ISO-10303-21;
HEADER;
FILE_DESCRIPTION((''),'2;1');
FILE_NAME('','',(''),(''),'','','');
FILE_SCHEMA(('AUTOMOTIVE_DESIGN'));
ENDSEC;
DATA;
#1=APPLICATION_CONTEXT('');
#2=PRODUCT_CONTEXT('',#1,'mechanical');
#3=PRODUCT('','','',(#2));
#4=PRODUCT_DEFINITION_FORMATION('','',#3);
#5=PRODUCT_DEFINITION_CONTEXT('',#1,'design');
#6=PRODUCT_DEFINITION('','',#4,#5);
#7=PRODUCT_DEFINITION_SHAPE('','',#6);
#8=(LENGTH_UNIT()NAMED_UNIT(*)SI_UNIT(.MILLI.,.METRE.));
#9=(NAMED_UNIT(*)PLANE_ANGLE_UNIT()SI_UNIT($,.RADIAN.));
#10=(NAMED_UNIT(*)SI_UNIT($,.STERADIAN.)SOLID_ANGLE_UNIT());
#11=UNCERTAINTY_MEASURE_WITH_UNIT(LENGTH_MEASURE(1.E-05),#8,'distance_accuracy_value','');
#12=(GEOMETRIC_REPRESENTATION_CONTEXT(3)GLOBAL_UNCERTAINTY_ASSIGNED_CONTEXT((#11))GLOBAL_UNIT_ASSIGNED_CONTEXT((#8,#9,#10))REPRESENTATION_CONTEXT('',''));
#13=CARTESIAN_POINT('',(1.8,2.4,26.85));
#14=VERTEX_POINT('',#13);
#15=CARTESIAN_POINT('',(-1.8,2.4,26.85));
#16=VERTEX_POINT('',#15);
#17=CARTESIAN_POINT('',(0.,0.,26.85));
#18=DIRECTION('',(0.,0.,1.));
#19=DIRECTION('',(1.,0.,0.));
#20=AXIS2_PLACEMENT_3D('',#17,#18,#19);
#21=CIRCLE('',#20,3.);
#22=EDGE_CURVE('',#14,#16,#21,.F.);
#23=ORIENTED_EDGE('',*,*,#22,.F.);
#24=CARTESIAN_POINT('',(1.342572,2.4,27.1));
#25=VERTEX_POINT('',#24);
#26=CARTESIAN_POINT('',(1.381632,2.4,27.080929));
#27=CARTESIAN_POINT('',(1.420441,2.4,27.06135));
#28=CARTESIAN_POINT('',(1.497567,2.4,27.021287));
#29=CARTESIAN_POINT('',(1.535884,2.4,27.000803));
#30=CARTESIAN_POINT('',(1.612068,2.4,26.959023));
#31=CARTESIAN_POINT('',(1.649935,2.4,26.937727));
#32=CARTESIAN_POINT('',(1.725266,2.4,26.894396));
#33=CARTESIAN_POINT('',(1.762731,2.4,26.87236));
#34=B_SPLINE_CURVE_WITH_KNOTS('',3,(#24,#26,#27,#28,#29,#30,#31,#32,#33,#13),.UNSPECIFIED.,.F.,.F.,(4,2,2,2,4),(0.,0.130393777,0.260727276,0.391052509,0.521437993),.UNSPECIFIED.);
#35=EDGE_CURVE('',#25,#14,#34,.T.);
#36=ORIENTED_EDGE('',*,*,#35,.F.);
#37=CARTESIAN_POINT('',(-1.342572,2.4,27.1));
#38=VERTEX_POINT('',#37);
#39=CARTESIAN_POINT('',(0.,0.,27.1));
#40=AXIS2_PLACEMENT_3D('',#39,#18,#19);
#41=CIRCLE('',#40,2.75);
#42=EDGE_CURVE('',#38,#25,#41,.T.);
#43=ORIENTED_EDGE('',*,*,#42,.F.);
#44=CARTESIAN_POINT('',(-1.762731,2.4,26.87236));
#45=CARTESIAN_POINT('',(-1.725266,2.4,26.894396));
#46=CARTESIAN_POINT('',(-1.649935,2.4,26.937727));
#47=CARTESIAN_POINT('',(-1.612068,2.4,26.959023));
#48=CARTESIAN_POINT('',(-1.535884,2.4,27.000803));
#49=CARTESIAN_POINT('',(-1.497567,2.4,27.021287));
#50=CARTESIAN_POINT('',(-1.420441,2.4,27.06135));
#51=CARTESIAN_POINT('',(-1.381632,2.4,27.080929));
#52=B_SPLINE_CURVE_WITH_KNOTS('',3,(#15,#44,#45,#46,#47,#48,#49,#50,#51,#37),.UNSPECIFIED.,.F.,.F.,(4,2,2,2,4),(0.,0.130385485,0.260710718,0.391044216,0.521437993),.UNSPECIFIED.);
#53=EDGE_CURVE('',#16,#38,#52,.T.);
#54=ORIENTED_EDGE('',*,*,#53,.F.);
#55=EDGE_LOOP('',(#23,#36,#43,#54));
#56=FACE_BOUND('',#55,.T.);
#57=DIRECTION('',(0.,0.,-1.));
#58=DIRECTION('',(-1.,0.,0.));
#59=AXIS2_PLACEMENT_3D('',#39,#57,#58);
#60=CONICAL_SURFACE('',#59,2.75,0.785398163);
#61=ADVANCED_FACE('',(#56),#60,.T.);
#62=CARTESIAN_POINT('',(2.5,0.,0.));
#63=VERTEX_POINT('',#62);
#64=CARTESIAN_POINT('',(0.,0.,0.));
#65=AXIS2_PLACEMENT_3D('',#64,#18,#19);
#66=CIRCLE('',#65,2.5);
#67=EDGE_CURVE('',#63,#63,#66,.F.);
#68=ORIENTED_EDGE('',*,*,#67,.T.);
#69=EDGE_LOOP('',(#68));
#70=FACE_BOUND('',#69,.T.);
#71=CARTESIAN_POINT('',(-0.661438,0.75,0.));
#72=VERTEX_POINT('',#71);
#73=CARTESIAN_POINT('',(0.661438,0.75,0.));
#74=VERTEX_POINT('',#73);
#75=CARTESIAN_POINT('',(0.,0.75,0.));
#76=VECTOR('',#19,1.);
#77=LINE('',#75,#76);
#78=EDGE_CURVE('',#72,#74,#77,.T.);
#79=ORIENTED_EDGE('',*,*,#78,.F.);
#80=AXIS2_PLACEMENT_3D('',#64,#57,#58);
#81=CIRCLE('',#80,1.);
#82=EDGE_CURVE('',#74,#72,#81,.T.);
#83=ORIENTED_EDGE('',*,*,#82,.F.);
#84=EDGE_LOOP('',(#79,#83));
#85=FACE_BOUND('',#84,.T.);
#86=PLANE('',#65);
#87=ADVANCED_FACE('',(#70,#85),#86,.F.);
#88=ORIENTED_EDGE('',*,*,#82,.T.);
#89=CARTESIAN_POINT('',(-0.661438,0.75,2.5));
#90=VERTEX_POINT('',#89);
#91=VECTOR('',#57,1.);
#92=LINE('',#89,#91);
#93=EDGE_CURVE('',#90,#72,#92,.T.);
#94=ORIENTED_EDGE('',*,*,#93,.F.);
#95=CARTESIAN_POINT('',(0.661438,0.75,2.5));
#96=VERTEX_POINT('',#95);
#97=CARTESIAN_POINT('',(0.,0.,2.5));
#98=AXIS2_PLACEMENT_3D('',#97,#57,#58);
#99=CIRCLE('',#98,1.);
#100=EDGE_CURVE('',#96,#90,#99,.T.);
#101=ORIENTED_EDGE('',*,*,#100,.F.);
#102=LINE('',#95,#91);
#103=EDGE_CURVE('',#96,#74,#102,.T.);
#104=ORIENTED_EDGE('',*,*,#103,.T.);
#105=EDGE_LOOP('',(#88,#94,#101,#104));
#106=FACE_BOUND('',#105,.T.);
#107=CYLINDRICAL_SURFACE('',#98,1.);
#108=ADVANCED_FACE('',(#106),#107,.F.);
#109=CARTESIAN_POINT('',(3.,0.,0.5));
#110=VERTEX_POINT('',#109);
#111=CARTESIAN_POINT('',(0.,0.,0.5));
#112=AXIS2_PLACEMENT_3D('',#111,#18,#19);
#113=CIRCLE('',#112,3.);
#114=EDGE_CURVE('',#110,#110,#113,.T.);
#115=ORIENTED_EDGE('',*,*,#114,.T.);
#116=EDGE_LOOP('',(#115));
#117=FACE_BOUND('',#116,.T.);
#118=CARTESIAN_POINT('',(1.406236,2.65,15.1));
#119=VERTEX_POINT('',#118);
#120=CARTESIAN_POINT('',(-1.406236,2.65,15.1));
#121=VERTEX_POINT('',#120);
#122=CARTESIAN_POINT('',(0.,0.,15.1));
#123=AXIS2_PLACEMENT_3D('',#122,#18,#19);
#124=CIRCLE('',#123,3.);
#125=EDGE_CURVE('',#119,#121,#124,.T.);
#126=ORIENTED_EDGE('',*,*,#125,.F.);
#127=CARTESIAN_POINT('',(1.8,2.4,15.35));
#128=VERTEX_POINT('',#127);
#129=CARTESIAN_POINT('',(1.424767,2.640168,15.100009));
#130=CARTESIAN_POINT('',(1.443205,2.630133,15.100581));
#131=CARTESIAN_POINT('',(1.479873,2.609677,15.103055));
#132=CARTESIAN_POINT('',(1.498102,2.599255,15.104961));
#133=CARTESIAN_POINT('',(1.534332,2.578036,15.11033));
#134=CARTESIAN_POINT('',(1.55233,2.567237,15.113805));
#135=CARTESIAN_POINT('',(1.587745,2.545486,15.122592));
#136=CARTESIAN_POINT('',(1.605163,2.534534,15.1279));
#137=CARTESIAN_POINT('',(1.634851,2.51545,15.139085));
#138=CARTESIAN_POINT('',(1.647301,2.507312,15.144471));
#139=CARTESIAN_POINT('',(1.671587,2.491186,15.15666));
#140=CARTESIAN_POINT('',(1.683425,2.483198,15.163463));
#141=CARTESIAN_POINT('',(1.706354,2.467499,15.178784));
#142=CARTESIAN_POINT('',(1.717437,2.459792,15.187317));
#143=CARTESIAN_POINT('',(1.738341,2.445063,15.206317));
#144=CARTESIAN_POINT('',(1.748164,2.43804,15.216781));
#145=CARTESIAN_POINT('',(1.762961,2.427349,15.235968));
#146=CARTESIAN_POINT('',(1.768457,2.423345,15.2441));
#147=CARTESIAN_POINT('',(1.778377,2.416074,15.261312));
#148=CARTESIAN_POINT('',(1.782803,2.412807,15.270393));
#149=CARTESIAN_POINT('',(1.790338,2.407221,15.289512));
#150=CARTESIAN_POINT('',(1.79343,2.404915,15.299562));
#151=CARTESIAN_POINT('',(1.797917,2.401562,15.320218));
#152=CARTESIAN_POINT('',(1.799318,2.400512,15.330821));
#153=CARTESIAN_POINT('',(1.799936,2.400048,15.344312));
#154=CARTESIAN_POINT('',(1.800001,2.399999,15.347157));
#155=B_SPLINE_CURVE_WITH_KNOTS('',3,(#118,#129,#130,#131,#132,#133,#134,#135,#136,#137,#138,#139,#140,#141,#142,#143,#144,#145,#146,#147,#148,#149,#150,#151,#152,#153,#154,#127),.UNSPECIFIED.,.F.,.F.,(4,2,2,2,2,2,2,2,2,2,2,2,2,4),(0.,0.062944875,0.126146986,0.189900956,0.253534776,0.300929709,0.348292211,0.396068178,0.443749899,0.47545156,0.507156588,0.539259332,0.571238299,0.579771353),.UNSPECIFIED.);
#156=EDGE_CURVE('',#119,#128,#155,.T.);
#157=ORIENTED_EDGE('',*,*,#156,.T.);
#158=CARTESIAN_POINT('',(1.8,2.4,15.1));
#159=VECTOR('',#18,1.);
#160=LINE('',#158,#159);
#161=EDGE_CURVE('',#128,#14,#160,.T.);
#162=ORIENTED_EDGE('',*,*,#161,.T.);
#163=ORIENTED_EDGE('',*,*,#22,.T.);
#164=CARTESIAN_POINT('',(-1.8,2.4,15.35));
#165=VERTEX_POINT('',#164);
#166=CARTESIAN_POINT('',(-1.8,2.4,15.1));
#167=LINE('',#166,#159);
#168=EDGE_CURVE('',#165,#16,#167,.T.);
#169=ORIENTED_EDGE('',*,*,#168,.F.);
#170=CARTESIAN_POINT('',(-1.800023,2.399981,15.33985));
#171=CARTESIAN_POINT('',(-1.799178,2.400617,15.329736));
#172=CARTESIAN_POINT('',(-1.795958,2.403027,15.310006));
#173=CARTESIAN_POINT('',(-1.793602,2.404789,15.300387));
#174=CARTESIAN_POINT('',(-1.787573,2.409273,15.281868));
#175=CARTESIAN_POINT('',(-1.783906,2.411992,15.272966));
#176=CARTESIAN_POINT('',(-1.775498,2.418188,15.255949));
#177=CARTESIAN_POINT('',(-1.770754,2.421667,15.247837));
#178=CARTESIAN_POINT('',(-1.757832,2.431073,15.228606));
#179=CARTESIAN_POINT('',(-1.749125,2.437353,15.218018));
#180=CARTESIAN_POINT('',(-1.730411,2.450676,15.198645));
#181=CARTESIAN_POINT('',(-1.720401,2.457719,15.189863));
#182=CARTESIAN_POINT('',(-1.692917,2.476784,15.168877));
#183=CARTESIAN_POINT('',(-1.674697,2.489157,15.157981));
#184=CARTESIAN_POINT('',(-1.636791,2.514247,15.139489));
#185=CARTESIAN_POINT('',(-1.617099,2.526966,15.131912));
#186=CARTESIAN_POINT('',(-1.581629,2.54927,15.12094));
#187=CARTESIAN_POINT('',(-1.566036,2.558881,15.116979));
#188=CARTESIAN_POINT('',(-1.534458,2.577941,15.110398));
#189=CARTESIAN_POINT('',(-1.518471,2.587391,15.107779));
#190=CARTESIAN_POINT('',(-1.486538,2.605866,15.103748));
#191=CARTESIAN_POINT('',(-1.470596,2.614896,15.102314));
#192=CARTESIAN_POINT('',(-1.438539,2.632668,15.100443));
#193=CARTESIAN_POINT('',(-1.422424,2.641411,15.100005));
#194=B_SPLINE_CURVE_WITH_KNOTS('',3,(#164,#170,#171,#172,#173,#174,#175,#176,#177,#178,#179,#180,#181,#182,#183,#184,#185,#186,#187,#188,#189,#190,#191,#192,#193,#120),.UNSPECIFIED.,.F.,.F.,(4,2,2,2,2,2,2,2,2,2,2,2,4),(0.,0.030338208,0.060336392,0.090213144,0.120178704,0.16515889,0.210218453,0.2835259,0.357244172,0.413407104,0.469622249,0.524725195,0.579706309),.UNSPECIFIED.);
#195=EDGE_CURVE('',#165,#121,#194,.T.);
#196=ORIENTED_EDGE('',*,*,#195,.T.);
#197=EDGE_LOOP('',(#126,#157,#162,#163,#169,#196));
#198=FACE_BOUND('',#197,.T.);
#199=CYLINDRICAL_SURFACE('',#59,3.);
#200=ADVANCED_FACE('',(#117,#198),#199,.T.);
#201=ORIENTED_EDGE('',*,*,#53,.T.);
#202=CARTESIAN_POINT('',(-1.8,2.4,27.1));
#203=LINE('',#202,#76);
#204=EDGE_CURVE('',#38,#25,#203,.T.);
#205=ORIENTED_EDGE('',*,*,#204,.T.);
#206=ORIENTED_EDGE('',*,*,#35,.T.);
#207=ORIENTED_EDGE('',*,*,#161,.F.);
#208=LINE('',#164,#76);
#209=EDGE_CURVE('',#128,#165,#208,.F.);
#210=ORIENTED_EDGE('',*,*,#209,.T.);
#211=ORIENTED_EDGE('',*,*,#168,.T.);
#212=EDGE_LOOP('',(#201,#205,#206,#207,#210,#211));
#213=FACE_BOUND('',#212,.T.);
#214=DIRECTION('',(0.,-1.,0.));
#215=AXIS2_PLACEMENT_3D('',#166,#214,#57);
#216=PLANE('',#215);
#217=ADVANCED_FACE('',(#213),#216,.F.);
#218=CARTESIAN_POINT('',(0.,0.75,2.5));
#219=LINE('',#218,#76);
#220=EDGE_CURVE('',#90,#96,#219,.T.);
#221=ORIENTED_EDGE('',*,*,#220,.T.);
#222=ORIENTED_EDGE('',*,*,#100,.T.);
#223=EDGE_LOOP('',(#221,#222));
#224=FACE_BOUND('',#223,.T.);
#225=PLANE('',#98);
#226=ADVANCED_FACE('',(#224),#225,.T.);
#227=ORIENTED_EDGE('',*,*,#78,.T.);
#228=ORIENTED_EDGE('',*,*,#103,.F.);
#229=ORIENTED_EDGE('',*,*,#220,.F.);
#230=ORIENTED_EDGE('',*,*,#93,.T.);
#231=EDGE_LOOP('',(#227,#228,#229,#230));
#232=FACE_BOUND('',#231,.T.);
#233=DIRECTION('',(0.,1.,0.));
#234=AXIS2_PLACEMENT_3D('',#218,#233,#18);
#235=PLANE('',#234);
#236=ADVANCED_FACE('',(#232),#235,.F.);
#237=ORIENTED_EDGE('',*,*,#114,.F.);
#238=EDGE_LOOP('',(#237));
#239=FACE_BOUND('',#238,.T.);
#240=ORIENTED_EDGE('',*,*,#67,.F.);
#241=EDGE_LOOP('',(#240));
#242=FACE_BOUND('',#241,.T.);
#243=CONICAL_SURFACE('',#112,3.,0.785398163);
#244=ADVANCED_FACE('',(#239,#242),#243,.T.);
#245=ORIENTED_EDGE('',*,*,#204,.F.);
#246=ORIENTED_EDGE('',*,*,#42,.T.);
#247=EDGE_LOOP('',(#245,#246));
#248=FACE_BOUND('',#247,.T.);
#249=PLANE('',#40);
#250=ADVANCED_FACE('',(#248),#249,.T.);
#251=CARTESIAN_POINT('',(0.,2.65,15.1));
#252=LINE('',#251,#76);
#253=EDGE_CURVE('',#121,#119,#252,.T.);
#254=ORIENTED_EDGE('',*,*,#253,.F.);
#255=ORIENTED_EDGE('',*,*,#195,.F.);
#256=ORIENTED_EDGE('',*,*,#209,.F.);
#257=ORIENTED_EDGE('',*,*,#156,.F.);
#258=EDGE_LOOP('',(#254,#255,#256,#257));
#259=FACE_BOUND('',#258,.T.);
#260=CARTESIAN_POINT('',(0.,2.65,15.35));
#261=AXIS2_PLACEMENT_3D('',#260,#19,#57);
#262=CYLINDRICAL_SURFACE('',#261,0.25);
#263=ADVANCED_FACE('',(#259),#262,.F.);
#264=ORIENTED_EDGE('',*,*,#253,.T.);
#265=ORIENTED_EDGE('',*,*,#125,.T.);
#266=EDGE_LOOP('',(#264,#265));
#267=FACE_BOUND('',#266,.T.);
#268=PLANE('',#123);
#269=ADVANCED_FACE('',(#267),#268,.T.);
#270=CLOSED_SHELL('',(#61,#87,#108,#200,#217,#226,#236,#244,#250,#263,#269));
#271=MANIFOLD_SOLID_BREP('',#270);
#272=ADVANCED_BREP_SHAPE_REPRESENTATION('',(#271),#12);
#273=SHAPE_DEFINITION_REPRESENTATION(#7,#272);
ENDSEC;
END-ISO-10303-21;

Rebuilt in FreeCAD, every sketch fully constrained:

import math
import FreeCAD as App
import Part
import Sketcher
Q = App.Units.Quantity


def edges_at(feature, points):
    """Names of the edges that pass closest to the given points."""
    edges = feature.Shape.Edges
    near = lambda p: min(range(len(edges)), key=lambda i: edges[i].distToShape(Part.Vertex(*p))[0])
    return sorted({f"Edge{near(p) + 1}" for p in points})

doc = App.newDocument("Part")
body = doc.addObject("PartDesign::Body", "Body")

sketch1 = body.newObject("Sketcher::SketchObject", "Sketch")
sketch1.AttachmentSupport = (doc.getObject("XY_Plane"), [""])
sketch1.MapMode = "FlatFace"
sketch1.addGeometry(Part.Circle(App.Vector(0, 0, 0), App.Vector(0, 0, 1), 3), False)
sketch1.addConstraint([
    Sketcher.Constraint("Coincident", 0, 3, -1, 1),
    Sketcher.Constraint("Diameter", 0, Q("6 mm")),
])
pad1 = body.newObject("PartDesign::Pad", "Pad")
pad1.Profile = sketch1
pad1.Length = 27.1

sketch2 = body.newObject("Sketcher::SketchObject", "Sketch001")
sketch2.AttachmentSupport = (doc.getObject("XY_Plane"), [""])
sketch2.MapMode = "FlatFace"
sketch2.AttachmentOffset = App.Placement(App.Vector(0, 0, 27.1), App.Rotation())
sketch2.addGeometry([
    Part.LineSegment(App.Vector(-1.8, 2.4, 0), App.Vector(1.8, 2.4, 0)),
    Part.ArcOfCircle(Part.Circle(App.Vector(0, 0, 0), App.Vector(0, 0, 1), 3), math.radians(53), math.radians(127)),
], False)
sketch2.addConstraint([
    Sketcher.Constraint("Coincident", 0, 1, 1, 2),
    Sketcher.Constraint("Coincident", 1, 1, 0, 2),
    Sketcher.Constraint("Horizontal", 0),
    Sketcher.Constraint("Coincident", 1, 3, -1, 1),
    Sketcher.Constraint("Radius", 1, Q("3 mm")),
    Sketcher.Constraint("DistanceX", 0, 1, 0, 2, Q("3.6 mm")),
])
pocket1 = body.newObject("PartDesign::Pocket", "Pocket")
pocket1.Profile = sketch2
pocket1.Length = 12
doc.recompute()

chamfer = body.newObject("PartDesign::Chamfer", "Chamfer")
chamfer.Base = (pocket1, edges_at(pocket1, [(-1.342, -2.683, 27.1)]))
chamfer.Size = 0.25

sketch3 = body.newObject("Sketcher::SketchObject", "Sketch002")
sketch3.AttachmentSupport = (doc.getObject("XY_Plane"), [""])
sketch3.MapMode = "FlatFace"
sketch3.addGeometry([
    Part.ArcOfCircle(Part.Circle(App.Vector(0, 0, 0), App.Vector(0, 0, 1), 1), math.radians(131), math.radians(409)),
    Part.LineSegment(App.Vector(-0.7, 0.8, 0), App.Vector(0.7, 0.8, 0)),
], False)
sketch3.addConstraint([
    Sketcher.Constraint("Coincident", 0, 1, 1, 1),
    Sketcher.Constraint("Coincident", 1, 2, 0, 2),
    Sketcher.Constraint("Horizontal", 1),
    Sketcher.Constraint("Coincident", 0, 3, -1, 1),
    Sketcher.Constraint("Radius", 0, Q("1 mm")),
    Sketcher.Constraint("DistanceY", -1, 1, 0, 1, Q("0.75 mm")),
])
pocket2 = body.newObject("PartDesign::Pocket", "Pocket001")
pocket2.Profile = sketch3
pocket2.Length = 2.5
pocket2.Reversed = True
doc.recompute()

chamfer2 = body.newObject("PartDesign::Chamfer", "Chamfer001")
chamfer2.Base = (pocket2, edges_at(pocket2, [(-3, 0, 0)]))
chamfer2.Size = 0.5
doc.recompute()

fillet = body.newObject("PartDesign::Fillet", "Fillet")
fillet.Base = (chamfer2, edges_at(chamfer2, [(0, 2.4, 15.1)]))
fillet.Radius = 0.25

doc.recompute()
